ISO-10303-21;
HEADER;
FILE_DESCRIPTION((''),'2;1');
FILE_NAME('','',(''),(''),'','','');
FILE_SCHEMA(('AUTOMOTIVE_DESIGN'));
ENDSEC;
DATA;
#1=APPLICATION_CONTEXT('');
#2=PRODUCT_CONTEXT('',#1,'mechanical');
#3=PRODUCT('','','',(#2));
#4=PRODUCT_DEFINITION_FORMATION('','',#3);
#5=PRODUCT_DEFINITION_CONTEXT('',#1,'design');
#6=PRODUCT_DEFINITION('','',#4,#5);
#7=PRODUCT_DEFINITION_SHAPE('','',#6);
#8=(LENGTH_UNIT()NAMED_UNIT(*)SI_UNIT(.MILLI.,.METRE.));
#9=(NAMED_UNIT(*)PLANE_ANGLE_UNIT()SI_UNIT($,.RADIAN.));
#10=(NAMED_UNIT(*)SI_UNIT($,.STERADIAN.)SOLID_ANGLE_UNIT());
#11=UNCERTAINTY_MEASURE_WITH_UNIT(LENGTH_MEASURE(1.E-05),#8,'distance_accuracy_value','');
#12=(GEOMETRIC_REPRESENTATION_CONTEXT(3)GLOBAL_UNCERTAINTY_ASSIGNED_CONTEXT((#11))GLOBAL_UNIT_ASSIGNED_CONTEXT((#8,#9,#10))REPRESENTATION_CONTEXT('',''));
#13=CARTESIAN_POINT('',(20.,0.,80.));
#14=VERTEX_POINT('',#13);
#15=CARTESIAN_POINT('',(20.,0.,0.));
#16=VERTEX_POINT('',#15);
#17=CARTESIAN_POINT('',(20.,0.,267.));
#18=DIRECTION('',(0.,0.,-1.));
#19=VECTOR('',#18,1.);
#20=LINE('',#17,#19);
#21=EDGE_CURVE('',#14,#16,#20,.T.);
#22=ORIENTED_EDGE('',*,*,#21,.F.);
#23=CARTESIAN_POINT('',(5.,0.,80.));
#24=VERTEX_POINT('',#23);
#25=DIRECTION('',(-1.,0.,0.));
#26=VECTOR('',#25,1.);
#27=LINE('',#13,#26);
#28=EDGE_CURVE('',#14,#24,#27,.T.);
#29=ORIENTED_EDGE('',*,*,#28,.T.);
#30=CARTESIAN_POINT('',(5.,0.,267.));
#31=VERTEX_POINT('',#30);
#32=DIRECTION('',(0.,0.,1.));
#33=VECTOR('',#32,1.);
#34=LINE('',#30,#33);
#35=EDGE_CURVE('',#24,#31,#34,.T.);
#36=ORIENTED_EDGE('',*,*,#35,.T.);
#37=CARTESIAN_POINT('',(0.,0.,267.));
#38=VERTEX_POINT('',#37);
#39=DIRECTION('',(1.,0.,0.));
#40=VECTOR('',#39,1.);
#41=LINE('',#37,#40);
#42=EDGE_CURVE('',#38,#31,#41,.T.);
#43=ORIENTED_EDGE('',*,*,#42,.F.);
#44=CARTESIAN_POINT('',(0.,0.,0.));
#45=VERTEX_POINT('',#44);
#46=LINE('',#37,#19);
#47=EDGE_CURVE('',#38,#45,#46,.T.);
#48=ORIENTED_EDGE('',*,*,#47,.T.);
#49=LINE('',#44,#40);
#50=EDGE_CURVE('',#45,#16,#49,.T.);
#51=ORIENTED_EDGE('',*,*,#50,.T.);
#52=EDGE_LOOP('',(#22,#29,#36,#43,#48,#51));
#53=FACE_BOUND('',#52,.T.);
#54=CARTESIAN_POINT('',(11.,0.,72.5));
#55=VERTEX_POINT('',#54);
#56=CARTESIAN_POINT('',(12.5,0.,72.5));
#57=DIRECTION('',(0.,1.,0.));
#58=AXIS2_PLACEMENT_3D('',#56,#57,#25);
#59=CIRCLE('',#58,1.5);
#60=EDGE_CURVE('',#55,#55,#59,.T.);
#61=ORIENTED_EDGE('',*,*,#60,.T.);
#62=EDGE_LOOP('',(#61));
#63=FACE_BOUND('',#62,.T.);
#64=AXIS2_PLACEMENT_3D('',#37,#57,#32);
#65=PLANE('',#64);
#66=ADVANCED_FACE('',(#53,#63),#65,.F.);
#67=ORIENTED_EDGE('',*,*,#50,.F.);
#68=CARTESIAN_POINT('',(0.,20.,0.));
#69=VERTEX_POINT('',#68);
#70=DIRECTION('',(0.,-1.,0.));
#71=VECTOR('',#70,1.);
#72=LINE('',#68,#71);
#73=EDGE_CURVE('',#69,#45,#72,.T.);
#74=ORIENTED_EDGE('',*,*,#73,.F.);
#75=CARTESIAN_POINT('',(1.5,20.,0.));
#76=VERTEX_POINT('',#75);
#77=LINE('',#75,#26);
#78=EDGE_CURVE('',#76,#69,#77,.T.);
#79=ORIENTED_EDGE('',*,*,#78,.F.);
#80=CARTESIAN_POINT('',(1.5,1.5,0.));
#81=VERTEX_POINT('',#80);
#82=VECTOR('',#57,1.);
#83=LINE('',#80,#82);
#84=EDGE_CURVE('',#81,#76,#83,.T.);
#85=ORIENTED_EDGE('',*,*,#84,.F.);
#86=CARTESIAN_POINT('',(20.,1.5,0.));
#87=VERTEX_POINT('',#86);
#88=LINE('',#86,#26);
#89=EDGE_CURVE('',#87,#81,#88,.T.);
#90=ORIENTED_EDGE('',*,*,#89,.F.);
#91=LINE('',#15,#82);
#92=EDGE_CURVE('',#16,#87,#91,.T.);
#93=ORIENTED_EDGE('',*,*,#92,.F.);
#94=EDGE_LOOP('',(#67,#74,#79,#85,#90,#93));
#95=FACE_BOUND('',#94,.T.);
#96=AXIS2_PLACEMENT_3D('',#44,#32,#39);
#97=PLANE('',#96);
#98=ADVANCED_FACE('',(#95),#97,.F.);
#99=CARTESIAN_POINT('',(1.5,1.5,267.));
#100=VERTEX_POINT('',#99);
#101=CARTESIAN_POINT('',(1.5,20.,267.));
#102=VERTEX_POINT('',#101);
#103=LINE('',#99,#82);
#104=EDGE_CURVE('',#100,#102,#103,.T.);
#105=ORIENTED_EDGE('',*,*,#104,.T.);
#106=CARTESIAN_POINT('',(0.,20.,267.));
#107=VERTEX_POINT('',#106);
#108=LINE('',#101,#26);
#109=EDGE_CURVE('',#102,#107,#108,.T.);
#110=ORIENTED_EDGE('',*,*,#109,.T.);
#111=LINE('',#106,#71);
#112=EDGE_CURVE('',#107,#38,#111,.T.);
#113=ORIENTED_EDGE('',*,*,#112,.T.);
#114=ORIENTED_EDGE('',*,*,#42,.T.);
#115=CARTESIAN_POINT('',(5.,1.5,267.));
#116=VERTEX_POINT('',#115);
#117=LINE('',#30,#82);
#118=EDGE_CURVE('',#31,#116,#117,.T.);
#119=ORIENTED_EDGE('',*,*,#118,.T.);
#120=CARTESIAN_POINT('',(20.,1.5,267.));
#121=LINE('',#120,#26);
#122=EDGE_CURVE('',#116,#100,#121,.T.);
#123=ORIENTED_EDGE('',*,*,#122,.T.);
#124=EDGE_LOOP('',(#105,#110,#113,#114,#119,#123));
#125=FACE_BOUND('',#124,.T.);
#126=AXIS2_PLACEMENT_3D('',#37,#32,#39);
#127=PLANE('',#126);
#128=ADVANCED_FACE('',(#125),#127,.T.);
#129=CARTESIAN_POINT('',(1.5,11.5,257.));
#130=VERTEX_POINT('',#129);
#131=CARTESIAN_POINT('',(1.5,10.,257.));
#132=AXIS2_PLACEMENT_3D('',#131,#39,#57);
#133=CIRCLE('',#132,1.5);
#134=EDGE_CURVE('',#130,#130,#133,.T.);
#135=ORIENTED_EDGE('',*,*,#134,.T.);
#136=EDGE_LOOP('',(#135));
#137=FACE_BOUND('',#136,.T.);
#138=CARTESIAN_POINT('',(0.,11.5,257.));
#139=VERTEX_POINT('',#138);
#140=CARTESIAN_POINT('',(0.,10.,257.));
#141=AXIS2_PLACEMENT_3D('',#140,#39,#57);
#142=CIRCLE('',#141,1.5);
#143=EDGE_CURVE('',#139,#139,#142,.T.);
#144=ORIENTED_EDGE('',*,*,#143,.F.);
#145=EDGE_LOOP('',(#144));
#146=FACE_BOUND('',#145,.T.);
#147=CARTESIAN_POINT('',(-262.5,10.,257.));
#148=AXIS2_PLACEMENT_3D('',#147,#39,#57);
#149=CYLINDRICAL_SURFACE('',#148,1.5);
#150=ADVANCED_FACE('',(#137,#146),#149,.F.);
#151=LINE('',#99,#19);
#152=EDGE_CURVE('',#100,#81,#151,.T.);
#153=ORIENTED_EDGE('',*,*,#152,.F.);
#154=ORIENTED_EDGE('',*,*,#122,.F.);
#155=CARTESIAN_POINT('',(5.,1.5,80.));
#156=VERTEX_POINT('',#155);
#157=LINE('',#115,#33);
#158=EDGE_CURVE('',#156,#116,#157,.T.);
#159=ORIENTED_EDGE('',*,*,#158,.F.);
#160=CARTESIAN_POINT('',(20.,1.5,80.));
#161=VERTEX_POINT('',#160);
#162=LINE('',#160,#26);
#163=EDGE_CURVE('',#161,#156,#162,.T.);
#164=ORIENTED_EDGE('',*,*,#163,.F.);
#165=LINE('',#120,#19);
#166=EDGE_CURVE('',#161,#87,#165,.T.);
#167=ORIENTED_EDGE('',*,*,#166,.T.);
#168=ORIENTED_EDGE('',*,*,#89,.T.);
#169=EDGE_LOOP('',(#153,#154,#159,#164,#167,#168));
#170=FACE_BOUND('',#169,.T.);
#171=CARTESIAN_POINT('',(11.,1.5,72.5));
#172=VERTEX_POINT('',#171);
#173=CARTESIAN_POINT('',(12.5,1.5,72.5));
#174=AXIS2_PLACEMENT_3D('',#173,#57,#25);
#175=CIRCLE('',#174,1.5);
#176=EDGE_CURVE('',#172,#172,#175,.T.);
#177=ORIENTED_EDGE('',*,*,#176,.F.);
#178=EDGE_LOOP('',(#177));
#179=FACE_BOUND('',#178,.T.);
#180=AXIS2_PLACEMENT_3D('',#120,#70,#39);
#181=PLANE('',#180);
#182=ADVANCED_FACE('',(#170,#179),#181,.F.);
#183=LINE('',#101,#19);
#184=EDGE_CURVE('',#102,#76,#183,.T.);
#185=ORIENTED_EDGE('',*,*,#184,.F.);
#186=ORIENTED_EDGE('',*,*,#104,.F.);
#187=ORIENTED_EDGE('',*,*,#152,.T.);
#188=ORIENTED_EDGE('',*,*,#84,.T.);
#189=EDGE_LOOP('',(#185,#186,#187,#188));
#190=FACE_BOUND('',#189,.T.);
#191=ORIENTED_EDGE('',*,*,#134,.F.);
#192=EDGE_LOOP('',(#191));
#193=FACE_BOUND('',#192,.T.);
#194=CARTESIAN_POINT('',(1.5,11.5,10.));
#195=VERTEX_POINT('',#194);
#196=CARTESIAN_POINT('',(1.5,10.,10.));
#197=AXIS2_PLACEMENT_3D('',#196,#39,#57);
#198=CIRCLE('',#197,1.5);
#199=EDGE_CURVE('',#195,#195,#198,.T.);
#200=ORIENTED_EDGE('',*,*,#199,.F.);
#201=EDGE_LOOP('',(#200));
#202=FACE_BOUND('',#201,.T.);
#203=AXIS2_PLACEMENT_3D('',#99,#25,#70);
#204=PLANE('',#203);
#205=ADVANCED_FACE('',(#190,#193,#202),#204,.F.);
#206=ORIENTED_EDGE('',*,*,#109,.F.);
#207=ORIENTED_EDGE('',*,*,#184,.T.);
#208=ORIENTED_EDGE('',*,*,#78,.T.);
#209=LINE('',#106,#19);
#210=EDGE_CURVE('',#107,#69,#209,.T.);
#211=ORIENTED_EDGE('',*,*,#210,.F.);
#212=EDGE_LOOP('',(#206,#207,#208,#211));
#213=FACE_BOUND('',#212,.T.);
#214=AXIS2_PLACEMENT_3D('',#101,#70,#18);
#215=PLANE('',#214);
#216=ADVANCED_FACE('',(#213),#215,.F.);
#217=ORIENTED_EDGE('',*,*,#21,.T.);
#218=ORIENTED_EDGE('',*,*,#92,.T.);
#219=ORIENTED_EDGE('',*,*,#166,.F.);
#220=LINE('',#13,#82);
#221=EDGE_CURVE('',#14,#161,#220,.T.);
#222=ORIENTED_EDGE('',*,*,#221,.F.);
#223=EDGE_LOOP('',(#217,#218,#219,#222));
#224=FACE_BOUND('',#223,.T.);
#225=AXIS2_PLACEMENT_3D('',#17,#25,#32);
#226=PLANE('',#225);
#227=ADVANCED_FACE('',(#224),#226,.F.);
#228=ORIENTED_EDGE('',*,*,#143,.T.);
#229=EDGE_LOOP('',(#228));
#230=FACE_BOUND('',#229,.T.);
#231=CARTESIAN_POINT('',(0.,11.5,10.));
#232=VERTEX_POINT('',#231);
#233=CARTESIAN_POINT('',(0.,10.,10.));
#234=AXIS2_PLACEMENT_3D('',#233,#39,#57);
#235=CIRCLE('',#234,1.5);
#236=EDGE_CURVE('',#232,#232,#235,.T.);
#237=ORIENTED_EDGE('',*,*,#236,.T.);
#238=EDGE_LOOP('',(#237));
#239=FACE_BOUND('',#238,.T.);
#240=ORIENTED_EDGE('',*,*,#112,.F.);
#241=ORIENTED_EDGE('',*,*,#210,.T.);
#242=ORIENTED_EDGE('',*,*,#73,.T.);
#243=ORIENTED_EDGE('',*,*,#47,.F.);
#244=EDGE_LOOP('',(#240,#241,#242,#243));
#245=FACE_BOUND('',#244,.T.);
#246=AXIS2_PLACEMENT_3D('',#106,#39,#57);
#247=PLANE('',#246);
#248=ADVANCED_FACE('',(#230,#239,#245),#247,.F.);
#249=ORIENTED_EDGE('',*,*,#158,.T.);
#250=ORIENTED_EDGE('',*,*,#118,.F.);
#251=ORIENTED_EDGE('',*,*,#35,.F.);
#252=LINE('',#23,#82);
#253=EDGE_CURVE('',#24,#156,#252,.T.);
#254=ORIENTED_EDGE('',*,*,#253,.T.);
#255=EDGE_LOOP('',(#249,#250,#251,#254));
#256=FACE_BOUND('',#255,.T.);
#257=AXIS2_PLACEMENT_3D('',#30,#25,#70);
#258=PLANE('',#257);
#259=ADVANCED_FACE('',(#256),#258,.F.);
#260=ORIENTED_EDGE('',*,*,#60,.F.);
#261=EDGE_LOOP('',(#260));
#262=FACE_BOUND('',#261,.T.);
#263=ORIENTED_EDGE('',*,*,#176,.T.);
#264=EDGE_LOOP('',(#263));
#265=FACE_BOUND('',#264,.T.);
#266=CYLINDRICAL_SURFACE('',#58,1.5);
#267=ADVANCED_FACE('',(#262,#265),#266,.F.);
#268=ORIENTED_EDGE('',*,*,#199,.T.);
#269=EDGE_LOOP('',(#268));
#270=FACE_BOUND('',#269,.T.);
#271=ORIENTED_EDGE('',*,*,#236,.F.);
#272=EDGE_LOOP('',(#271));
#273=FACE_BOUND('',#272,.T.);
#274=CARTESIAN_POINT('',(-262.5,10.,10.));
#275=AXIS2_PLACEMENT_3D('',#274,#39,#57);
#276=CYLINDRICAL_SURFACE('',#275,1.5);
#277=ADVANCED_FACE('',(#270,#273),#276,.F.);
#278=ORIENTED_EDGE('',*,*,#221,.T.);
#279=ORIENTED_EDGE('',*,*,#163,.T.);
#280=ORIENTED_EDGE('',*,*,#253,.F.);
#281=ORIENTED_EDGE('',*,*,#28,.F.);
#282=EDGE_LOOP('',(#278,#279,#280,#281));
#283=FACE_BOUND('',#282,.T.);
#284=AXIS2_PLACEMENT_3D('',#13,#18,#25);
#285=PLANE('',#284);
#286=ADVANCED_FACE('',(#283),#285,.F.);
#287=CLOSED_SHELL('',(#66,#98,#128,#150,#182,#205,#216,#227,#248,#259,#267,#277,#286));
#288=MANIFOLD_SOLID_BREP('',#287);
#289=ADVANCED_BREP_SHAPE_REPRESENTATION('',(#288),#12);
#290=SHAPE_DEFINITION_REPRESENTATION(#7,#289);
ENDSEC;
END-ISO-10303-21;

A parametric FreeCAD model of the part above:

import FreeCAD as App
import Part
import Sketcher

V = App.Vector


def add_polygon(sketch, points):
    """Adds a closed chain of lines whose ends are joined by coincident constraints."""
    first, n = sketch.GeometryCount, len(points)
    for a, b in zip(points, points[1:] + points[:1]):
        sketch.addGeometry(Part.LineSegment(App.Vector(*a, 0), App.Vector(*b, 0)), False)
    for i in range(n):
        sketch.addConstraint(Sketcher.Constraint("Coincident", first + i, 2, first + (i + 1) % n, 1))

doc = App.newDocument("Part")
body = doc.addObject("PartDesign::Body", "Body")

sketch1 = body.newObject("Sketcher::SketchObject", "Sketch")
sketch1.AttachmentSupport = (doc.getObject("XY_Plane"), [""])
sketch1.MapMode = "FlatFace"
add_polygon(sketch1, [(0, 0), (20, 0), (20, 1.5), (1.5, 1.5), (1.5, 20), (0, 20)])
sketch1.addConstraint([
    Sketcher.Constraint("Horizontal", 0),
    Sketcher.Constraint("Vertical", 1),
    Sketcher.Constraint("Horizontal", 2),
    Sketcher.Constraint("Vertical", 3),
    Sketcher.Constraint("Horizontal", 4),
    Sketcher.Constraint("Vertical", 5),
    Sketcher.Constraint("Coincident", 5, 2, -1, 1),
    Sketcher.Constraint("Equal", 4, 1),
    Sketcher.Constraint("Equal", 2, 3),
    Sketcher.Constraint("DistanceX", 0, 1, 0, 2, 20.0),
    Sketcher.Constraint("DistanceX", 2, 2, 2, 1, 18.5),
])
pad1 = body.newObject("PartDesign::Pad", "Pad")
pad1.Profile = sketch1
pad1.Length = 267

sketch2 = body.newObject("Sketcher::SketchObject", "Sketch001")
sketch2.AttachmentSupport = (doc.getObject("XZ_Plane"), [""])
sketch2.MapMode = "FlatFace"
sketch2.AttachmentOffset = App.Placement(V(0, 0, -1.5), App.Rotation())
sketch2.addGeometry(Part.Circle(V(12.5, 72.5, 0), V(0, 0, 1), 1.5), False)
add_polygon(sketch2, [(5, 80), (5, 267), (20, 267), (20, 80)])
sketch2.addConstraint([
    Sketcher.Constraint("Vertical", 1),
    Sketcher.Constraint("Horizontal", 2),
    Sketcher.Constraint("Vertical", 3),
    Sketcher.Constraint("Horizontal", 4),
    Sketcher.Constraint("Diameter", 0, 3.0),
    Sketcher.Constraint("DistanceX", 2, 1, 2, 2, 15.0),
    Sketcher.Constraint("DistanceY", 1, 1, 1, 2, 187.0),
    Sketcher.Constraint("DistanceX", -1, 1, 1, 2, 5.0),
    Sketcher.Constraint("DistanceY", -1, 1, 1, 2, 267.0),
    Sketcher.Constraint("DistanceX", -1, 1, 0, 3, 12.5),
    Sketcher.Constraint("DistanceY", -1, 1, 0, 3, 72.5),
])
pocket1 = body.newObject("PartDesign::Pocket", "Pocket")
pocket1.Profile = sketch2
pocket1.Type = "ThroughAll"
pocket1.Reversed = True

sketch3 = body.newObject("Sketcher::SketchObject", "Sketch002")
sketch3.AttachmentSupport = (doc.getObject("YZ_Plane"), [""])
sketch3.MapMode = "FlatFace"
sketch3.AttachmentOffset = App.Placement(V(0, 0, 1.5), App.Rotation())
sketch3.addGeometry([
    Part.Circle(V(10, 257, 0), V(0, 0, 1), 1.5),
    Part.Circle(V(10, 10, 0), V(0, 0, 1), 1.5),
], False)
sketch3.addConstraint([
    Sketcher.Constraint("Equal", 0, 1),
    Sketcher.Constraint("Vertical", 0, 3, 1, 3),
    Sketcher.Constraint("Diameter", 0, 3.0),
    Sketcher.Constraint("DistanceX", -1, 1, 0, 3, 10.0),
    Sketcher.Constraint("DistanceY", -1, 1, 0, 3, 257.0),
    Sketcher.Constraint("DistanceY", -1, 1, 1, 3, 10.0),
])
pocket2 = body.newObject("PartDesign::Pocket", "Pocket001")
pocket2.Profile = sketch3
pocket2.Length = 264

doc.recompute()
